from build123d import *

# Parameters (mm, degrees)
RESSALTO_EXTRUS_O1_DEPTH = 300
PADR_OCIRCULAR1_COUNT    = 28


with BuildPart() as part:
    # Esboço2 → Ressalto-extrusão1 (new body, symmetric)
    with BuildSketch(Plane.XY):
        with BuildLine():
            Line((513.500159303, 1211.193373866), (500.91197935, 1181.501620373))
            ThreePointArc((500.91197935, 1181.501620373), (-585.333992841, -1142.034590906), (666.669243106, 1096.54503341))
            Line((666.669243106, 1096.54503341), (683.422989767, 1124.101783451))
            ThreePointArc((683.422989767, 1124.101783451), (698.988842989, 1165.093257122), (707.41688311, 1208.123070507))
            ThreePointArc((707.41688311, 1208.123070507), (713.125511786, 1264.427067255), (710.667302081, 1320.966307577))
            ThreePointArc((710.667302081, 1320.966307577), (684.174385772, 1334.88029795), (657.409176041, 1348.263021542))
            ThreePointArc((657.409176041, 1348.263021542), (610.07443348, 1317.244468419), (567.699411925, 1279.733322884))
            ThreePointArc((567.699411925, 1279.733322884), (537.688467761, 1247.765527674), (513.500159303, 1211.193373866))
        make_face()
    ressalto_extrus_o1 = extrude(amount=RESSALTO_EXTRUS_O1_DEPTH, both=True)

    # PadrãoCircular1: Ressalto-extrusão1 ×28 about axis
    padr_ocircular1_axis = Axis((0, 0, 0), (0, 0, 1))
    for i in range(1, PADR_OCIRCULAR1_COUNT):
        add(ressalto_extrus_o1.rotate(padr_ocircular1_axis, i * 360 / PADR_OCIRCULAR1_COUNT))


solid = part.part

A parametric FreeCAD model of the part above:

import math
import FreeCAD as App
import Part
import Sketcher
from FreeCAD import Vector
Q = App.Units.Quantity

doc = App.newDocument("Part")
params = doc.addObject("Spreadsheet::Sheet", "Params")
for row, (alias, value) in enumerate([
    ("sketch1_radius", "259 mm"),
    ("sketch1_radius2", "392 mm"),
    ("sketch1_radius3", "1499.999998 mm"),
    ("sketch1_radius4", "1283.3 mm"),
    ("sketch1_length", "32.25 mm"),
    ("pad1_length", "600 mm"),
], start=1):
    params.set(f"A{row}", alias)
    params.set(f"B{row}", "=" + value)
    params.setAlias(f"B{row}", alias)

body = doc.addObject("PartDesign::Body", "Body")

sketch1 = body.newObject("Sketcher::SketchObject", "Sketch")
sketch1.AttachmentSupport = (doc.getObject("XY_Plane"), [""])
sketch1.MapMode = "FlatFace"
sketch1.addGeometry(Part.LineSegment(Vector(514, 1211, 0), Vector(501, 1182, 0)), False)
sketch1.addGeometry(Part.ArcOfCircle(Part.Circle(Vector(0, 0, 0), Vector(0, 0, 1), 1283), math.radians(67), math.radians(419)), False)
sketch1.addGeometry(Part.LineSegment(Vector(667, 1097, 0), Vector(683, 1124, 0)), False)
sketch1.addGeometry(Part.ArcOfCircle(Part.Circle(Vector(450, 1236, 0), Vector(0, 0, 1), 259), math.radians(-25.65), math.radians(-6.23)), False)
sketch1.addGeometry(Part.ArcOfCircle(Part.Circle(Vector(321, 1276, 0), Vector(0, 0, 1), 392), math.radians(-9.93), math.radians(6.63)), False)
sketch1.addGeometry(Part.ArcOfCircle(Part.Circle(Vector(0, 0, 0), Vector(0, 0, 1), 1500), math.radians(61.72), math.radians(64.01)), False)
sketch1.addGeometry(Part.ArcOfCircle(Part.Circle(Vector(848, 1006, 0), Vector(0, 0, 1), 392), math.radians(119.1), math.radians(135.66)), False)
sketch1.addGeometry(Part.ArcOfCircle(Part.Circle(Vector(741, 1087, 0), Vector(0, 0, 1), 259), math.radians(131.95), math.radians(151.38)), False)
sketch1.addConstraint(Sketcher.Constraint("Coincident", 0, 2, 1, 1))
sketch1.addConstraint(Sketcher.Constraint("Coincident", 1, 2, 2, 1))
sketch1.addConstraint(Sketcher.Constraint("Coincident", 2, 2, 3, 1))
sketch1.addConstraint(Sketcher.Constraint("Coincident", 3, 2, 4, 1))
sketch1.addConstraint(Sketcher.Constraint("Coincident", 4, 2, 5, 1))
sketch1.addConstraint(Sketcher.Constraint("Coincident", 5, 2, 6, 1))
sketch1.addConstraint(Sketcher.Constraint("Coincident", 6, 2, 7, 1))
sketch1.addConstraint(Sketcher.Constraint("Coincident", 7, 2, 0, 1))
sketch1.addConstraint(Sketcher.Constraint("Coincident", 1, 3, -1, 1))
sketch1.addConstraint(Sketcher.Constraint("Coincident", 5, 3, -1, 1))
sketch1.addConstraint(Sketcher.Constraint("Equal", 4, 6))
sketch1.addConstraint(Sketcher.Constraint("Equal", 3, 7))
sketch1.addConstraint(Sketcher.Constraint("Equal", 0, 2))
sketch1.addConstraint(Sketcher.Constraint("Radius", 3, 259.0))
sketch1.addConstraint(Sketcher.Constraint("Radius", 4, 392.0))
sketch1.addConstraint(Sketcher.Constraint("Radius", 5, 1499.999998))
sketch1.addConstraint(Sketcher.Constraint("Radius", 1, 1283.3))
sketch1.addConstraint(Sketcher.Constraint("Distance", 0, 32.25))
sketch1.addConstraint(Sketcher.Constraint("DistanceY", 7, 3, 0, 2, 94.385999))
sketch1.addConstraint(Sketcher.Constraint("DistanceX", -1, 1, 3, 3, 449.9446))
sketch1.addConstraint(Sketcher.Constraint("DistanceY", 6, 2, 5, 2, 68.529699))
sketch1.addConstraint(Sketcher.Constraint("DistanceY", -1, 1, 4, 3, 1275.71384))
sketch1.addConstraint(Sketcher.Constraint("DistanceY", -1, 1, 6, 3, 1005.73579))
sketch1.addConstraint(Sketcher.Constraint("DistanceY", -1, 1, 7, 3, 1087.115622))
sketch1.addConstraint(Sketcher.Constraint("DistanceX", -1, 1, 2, 2, 683.42299))
sketch1.addConstraint(Sketcher.Constraint("DistanceY", -1, 1, 3, 2, 1208.123071))
sketch1.addConstraint(Sketcher.Constraint("DistanceX", -1, 1, 7, 2, 513.500159))
sketch1.addConstraint(Sketcher.Constraint("Angle", 2, Q("58.701548 deg")))
sketch1.setExpression("Constraints[13]", "Params.sketch1_radius")
sketch1.setExpression("Constraints[14]", "Params.sketch1_radius2")
sketch1.setExpression("Constraints[15]", "Params.sketch1_radius3")
sketch1.setExpression("Constraints[16]", "Params.sketch1_radius4")
sketch1.setExpression("Constraints[17]", "Params.sketch1_length")
pad1 = body.newObject("PartDesign::Pad", "Pad")
pad1.Profile = sketch1
pad1.setExpression("Length", "Params.pad1_length")
pad1.Midplane = True
doc.recompute()

polarpattern = body.newObject("PartDesign::PolarPattern", "PolarPattern")
polarpattern.Originals = [pad1]
polarpattern.Axis = (doc.getObject("Z_Axis"), [""])
polarpattern.Angle = 360
polarpattern.Occurrences = 28
body.Tip = polarpattern

doc.recompute()
